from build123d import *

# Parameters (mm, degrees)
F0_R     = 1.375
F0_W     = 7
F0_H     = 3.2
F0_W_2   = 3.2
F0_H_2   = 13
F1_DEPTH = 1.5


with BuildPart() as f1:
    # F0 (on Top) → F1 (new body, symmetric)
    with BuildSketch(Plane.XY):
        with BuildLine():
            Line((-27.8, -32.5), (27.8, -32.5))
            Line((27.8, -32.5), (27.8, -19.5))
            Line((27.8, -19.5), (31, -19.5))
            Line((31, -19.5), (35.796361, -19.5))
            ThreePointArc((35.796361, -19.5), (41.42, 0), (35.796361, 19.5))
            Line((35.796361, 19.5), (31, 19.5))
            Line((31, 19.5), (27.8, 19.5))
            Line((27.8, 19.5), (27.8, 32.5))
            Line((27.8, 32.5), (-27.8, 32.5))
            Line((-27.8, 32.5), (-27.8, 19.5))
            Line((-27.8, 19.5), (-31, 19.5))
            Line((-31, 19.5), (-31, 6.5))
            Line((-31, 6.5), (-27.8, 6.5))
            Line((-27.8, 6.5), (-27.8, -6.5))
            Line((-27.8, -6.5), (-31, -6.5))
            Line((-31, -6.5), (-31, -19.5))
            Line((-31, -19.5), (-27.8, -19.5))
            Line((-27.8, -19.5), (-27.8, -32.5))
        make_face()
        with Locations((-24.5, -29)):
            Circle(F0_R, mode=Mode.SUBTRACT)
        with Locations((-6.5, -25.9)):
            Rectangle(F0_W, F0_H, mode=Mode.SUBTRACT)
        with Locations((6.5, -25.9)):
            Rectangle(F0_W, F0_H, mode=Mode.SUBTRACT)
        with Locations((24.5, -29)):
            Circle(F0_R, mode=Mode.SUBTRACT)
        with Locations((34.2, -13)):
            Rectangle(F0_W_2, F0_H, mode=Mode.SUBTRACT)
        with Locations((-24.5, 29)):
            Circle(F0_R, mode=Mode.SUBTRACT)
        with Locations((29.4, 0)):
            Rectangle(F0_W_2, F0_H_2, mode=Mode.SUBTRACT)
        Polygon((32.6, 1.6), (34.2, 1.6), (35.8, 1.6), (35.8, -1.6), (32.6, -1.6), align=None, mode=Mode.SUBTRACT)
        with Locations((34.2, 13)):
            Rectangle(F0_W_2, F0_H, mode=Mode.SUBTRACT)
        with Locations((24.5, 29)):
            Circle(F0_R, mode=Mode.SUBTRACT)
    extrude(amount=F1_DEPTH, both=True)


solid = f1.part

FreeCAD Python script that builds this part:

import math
import FreeCAD as App
import Part
import Sketcher
from FreeCAD import Vector

doc = App.newDocument("Part")
params = doc.addObject("Spreadsheet::Sheet", "Params")
for row, (alias, value) in enumerate([
    ("sketch1_diameter", "2.75 mm"),
    ("sketch1_width", "7 mm"),
    ("sketch1_height", "13 mm"),
    ("sketch1_radius", "36.62 mm"),
    ("sketch1_width2", "55.6 mm"),
    ("pad1_length", "3 mm"),
], start=1):
    params.set(f"A{row}", alias)
    params.set(f"B{row}", "=" + value)
    params.setAlias(f"B{row}", alias)

body = doc.addObject("PartDesign::Body", "Body")

# Sketch on XY plane
sketch1 = body.newObject("Sketcher::SketchObject", "Sketch")
sketch1.AttachmentSupport = (doc.getObject("XY_Plane"), [""])
sketch1.MapMode = "FlatFace"
sketch1.addGeometry([
    Part.LineSegment(Vector(-27.8, -32.5, 0), Vector(27.8, -32.5, 0)),  # 0
    Part.LineSegment(Vector(27.8, -32.5, 0), Vector(27.8, -19.5, 0)),  # 1
    Part.LineSegment(Vector(27.8, -19.5, 0), Vector(35.8, -19.5, 0)),  # 2
    Part.ArcOfCircle(Part.Circle(Vector(4.8, 0, 0), Vector(0, 0, 1), 36.6), math.radians(-32), math.radians(32)),  # 3
    Part.LineSegment(Vector(35.8, 19.5, 0), Vector(27.8, 19.5, 0)),  # 4
    Part.LineSegment(Vector(27.8, 19.5, 0), Vector(27.8, 32.5, 0)),  # 5
    Part.LineSegment(Vector(27.8, 32.5, 0), Vector(-27.8, 32.5, 0)),  # 6
    Part.LineSegment(Vector(-27.8, 32.5, 0), Vector(-27.8, 19.5, 0)),  # 7
    Part.LineSegment(Vector(-27.8, 19.5, 0), Vector(-31, 19.5, 0)),  # 8
    Part.LineSegment(Vector(-31, 19.5, 0), Vector(-31, 6.5, 0)),  # 9
    Part.LineSegment(Vector(-31, 6.5, 0), Vector(-27.8, 6.5, 0)),  # 10
    Part.LineSegment(Vector(-27.8, 6.5, 0), Vector(-27.8, -6.5, 0)),  # 11
    Part.LineSegment(Vector(-27.8, -6.5, 0), Vector(-31, -6.5, 0)),  # 12
    Part.LineSegment(Vector(-31, -6.5, 0), Vector(-31, -19.5, 0)),  # 13
    Part.LineSegment(Vector(-31, -19.5, 0), Vector(-27.8, -19.5, 0)),  # 14
    Part.LineSegment(Vector(-27.8, -19.5, 0), Vector(-27.8, -32.5, 0)),  # 15
    Part.Circle(Vector(-24.5, -29, 0), Vector(0, 0, 1), 1.4),  # 16
    Part.LineSegment(Vector(-3, -27.5, 0), Vector(-10, -27.5, 0)),  # 17
    Part.LineSegment(Vector(-10, -27.5, 0), Vector(-10, -24.3, 0)),  # 18
    Part.LineSegment(Vector(-10, -24.3, 0), Vector(-3, -24.3, 0)),  # 19
    Part.LineSegment(Vector(-3, -24.3, 0), Vector(-3, -27.5, 0)),  # 20
    Part.LineSegment(Vector(10, -27.5, 0), Vector(3, -27.5, 0)),  # 21
    Part.LineSegment(Vector(3, -27.5, 0), Vector(3, -24.3, 0)),  # 22
    Part.LineSegment(Vector(3, -24.3, 0), Vector(10, -24.3, 0)),  # 23
    Part.LineSegment(Vector(10, -24.3, 0), Vector(10, -27.5, 0)),  # 24
    Part.Circle(Vector(24.5, -29, 0), Vector(0, 0, 1), 1.4),  # 25
    Part.LineSegment(Vector(35.8, -14.6, 0), Vector(32.6, -14.6, 0)),  # 26
    Part.LineSegment(Vector(32.6, -14.6, 0), Vector(32.6, -11.4, 0)),  # 27
    Part.LineSegment(Vector(32.6, -11.4, 0), Vector(35.8, -11.4, 0)),  # 28
    Part.LineSegment(Vector(35.8, -11.4, 0), Vector(35.8, -14.6, 0)),  # 29
    Part.Circle(Vector(-24.5, 29, 0), Vector(0, 0, 1), 1.4),  # 30
    Part.LineSegment(Vector(31, -6.5, 0), Vector(27.8, -6.5, 0)),  # 31
    Part.LineSegment(Vector(27.8, -6.5, 0), Vector(27.8, 6.5, 0)),  # 32
    Part.LineSegment(Vector(27.8, 6.5, 0), Vector(31, 6.5, 0)),  # 33
    Part.LineSegment(Vector(31, 6.5, 0), Vector(31, -6.5, 0)),  # 34
    Part.LineSegment(Vector(32.6, -1.6, 0), Vector(32.6, 1.6, 0)),  # 35
    Part.LineSegment(Vector(32.6, 1.6, 0), Vector(35.8, 1.6, 0)),  # 36
    Part.LineSegment(Vector(35.8, 1.6, 0), Vector(35.8, -1.6, 0)),  # 37
    Part.LineSegment(Vector(35.8, -1.6, 0), Vector(32.6, -1.6, 0)),  # 38
    Part.LineSegment(Vector(35.8, 11.4, 0), Vector(32.6, 11.4, 0)),  # 39
    Part.LineSegment(Vector(32.6, 11.4, 0), Vector(32.6, 14.6, 0)),  # 40
    Part.LineSegment(Vector(32.6, 14.6, 0), Vector(35.8, 14.6, 0)),  # 41
    Part.LineSegment(Vector(35.8, 14.6, 0), Vector(35.8, 11.4, 0)),  # 42
    Part.Circle(Vector(24.5, 29, 0), Vector(0, 0, 1), 1.4),  # 43
], False)
sketch1.addConstraint([
    Sketcher.Constraint("Coincident", 0, 2, 1, 1),
    Sketcher.Constraint("Coincident", 1, 2, 2, 1),
    Sketcher.Constraint("Coincident", 2, 2, 3, 1),
    Sketcher.Constraint("Coincident", 3, 2, 4, 1),
    Sketcher.Constraint("Coincident", 4, 2, 5, 1),
    Sketcher.Constraint("Coincident", 5, 2, 6, 1),
    Sketcher.Constraint("Coincident", 6, 2, 7, 1),
    Sketcher.Constraint("Coincident", 7, 2, 8, 1),
    Sketcher.Constraint("Coincident", 8, 2, 9, 1),
    Sketcher.Constraint("Coincident", 9, 2, 10, 1),
    Sketcher.Constraint("Coincident", 10, 2, 11, 1),
    Sketcher.Constraint("Coincident", 11, 2, 12, 1),
    Sketcher.Constraint("Coincident", 12, 2, 13, 1),
    Sketcher.Constraint("Coincident", 13, 2, 14, 1),
    Sketcher.Constraint("Coincident", 14, 2, 15, 1),
    Sketcher.Constraint("Coincident", 15, 2, 0, 1),
    Sketcher.Constraint("Coincident", 17, 2, 18, 1),
    Sketcher.Constraint("Coincident", 18, 2, 19, 1),
    Sketcher.Constraint("Coincident", 19, 2, 20, 1),
    Sketcher.Constraint("Coincident", 20, 2, 17, 1),
    Sketcher.Constraint("Coincident", 21, 2, 22, 1),
    Sketcher.Constraint("Coincident", 22, 2, 23, 1),
    Sketcher.Constraint("Coincident", 23, 2, 24, 1),
    Sketcher.Constraint("Coincident", 24, 2, 21, 1),
    Sketcher.Constraint("Coincident", 26, 2, 27, 1),
    Sketcher.Constraint("Coincident", 27, 2, 28, 1),
    Sketcher.Constraint("Coincident", 28, 2, 29, 1),
    Sketcher.Constraint("Coincident", 29, 2, 26, 1),
    Sketcher.Constraint("Coincident", 31, 2, 32, 1),
    Sketcher.Constraint("Coincident", 32, 2, 33, 1),
    Sketcher.Constraint("Coincident", 33, 2, 34, 1),
    Sketcher.Constraint("Coincident", 34, 2, 31, 1),
    Sketcher.Constraint("Coincident", 35, 2, 36, 1),
    Sketcher.Constraint("Coincident", 36, 2, 37, 1),
    Sketcher.Constraint("Coincident", 37, 2, 38, 1),
    Sketcher.Constraint("Coincident", 38, 2, 35, 1),
    Sketcher.Constraint("Coincident", 39, 2, 40, 1),
    Sketcher.Constraint("Coincident", 40, 2, 41, 1),
    Sketcher.Constraint("Coincident", 41, 2, 42, 1),
    Sketcher.Constraint("Coincident", 42, 2, 39, 1),
    Sketcher.Constraint("Horizontal", 0),
    Sketcher.Constraint("Vertical", 1),
    Sketcher.Constraint("Horizontal", 2),
    Sketcher.Constraint("Horizontal", 4),
    Sketcher.Constraint("Vertical", 5),
    Sketcher.Constraint("Horizontal", 6),
    Sketcher.Constraint("Vertical", 7),
    Sketcher.Constraint("Horizontal", 8),
    Sketcher.Constraint("Vertical", 9),
    Sketcher.Constraint("Horizontal", 10),
    Sketcher.Constraint("Vertical", 11),
    Sketcher.Constraint("Horizontal", 12),
    Sketcher.Constraint("Vertical", 13),
    Sketcher.Constraint("Horizontal", 14),
    Sketcher.Constraint("Vertical", 15),
    Sketcher.Constraint("Horizontal", 17),
    Sketcher.Constraint("Vertical", 18),
    Sketcher.Constraint("Horizontal", 19),
    Sketcher.Constraint("Vertical", 20),
    Sketcher.Constraint("Horizontal", 21),
    Sketcher.Constraint("Vertical", 22),
    Sketcher.Constraint("Horizontal", 23),
    Sketcher.Constraint("Vertical", 24),
    Sketcher.Constraint("Horizontal", 26),
    Sketcher.Constraint("Vertical", 27),
    Sketcher.Constraint("Horizontal", 28),
    Sketcher.Constraint("Vertical", 29),
    Sketcher.Constraint("Horizontal", 31),
    Sketcher.Constraint("Vertical", 32),
    Sketcher.Constraint("Horizontal", 33),
    Sketcher.Constraint("Vertical", 34),
    Sketcher.Constraint("Vertical", 35),
    Sketcher.Constraint("Horizontal", 36),
    Sketcher.Constraint("Vertical", 37),
    Sketcher.Constraint("Horizontal", 38),
    Sketcher.Constraint("Horizontal", 39),
    Sketcher.Constraint("Vertical", 40),
    Sketcher.Constraint("Horizontal", 41),
    Sketcher.Constraint("Vertical", 42),
    Sketcher.Constraint("Equal", 16, 25),
    Sketcher.Constraint("Equal", 25, 30),
    Sketcher.Constraint("Equal", 30, 43),
    Sketcher.Constraint("Symmetric", 25, 3, 30, 3, -1, 1),
    Sketcher.Constraint("Symmetric", 16, 3, 43, 3, -1, 1),
    Sketcher.Constraint("Symmetric", 0, 2, 6, 2, -1, 1),
    Sketcher.Constraint("Symmetric", 4, 2, 14, 2, -1, 1),
    Sketcher.Constraint("Symmetric", 10, 2, 31, 2, -1, 1),
    Sketcher.Constraint("Symmetric", 12, 2, 33, 2, -1, 1),
    Sketcher.Constraint("Symmetric", 16, 3, 25, 3, -2),
    Sketcher.Constraint("Symmetric", 4, 2, 7, 2, -2),
    Sketcher.Constraint("Symmetric", 20, 2, 21, 2, -2),
    Sketcher.Constraint("Symmetric", 18, 2, 23, 2, -2),
    Sketcher.Constraint("Symmetric", 9, 2, 33, 2, -2),
    Sketcher.Constraint("Symmetric", 2, 2, 3, 2, -1),
    Sketcher.Constraint("Symmetric", 27, 2, 39, 2, -1),
    Sketcher.Constraint("Symmetric", 29, 2, 41, 2, -1),
    Sketcher.Constraint("Vertical", 7, 2, 10, 2),
    Sketcher.Constraint("Vertical", 27, 2, 35, 2),
    Sketcher.Constraint("Vertical", 29, 2, 36, 2),
    Sketcher.Constraint("Equal", 14, 26),
    Sketcher.Constraint("Equal", 7, 9),
    Sketcher.Constraint("Equal", 9, 11),
    Sketcher.Constraint("Equal", 41, 18),
    Sketcher.Constraint("Equal", 24, 27),
    Sketcher.Constraint("Equal", 29, 35),
    Sketcher.Constraint("Diameter", 16, 2.75),
    Sketcher.Constraint("DistanceX", 17, 2, 17, 1, 7.0),
    Sketcher.Constraint("DistanceY", 1, 1, 1, 2, 13.0),
    Sketcher.Constraint("Radius", 3, 36.62),
    Sketcher.Constraint("DistanceX", 0, 1, 0, 2, 55.6),
    Sketcher.Constraint("DistanceX", 8, 2, 8, 1, 3.2),
    Sketcher.Constraint("DistanceY", 16, 3, -1, 1, 29.0),
    Sketcher.Constraint("DistanceX", 17, 2, -1, 1, 10.0),
    Sketcher.Constraint("DistanceX", 16, 3, 25, 3, 49.0),
    Sketcher.Constraint("DistanceX", 3, 3, 0, 2, 23.0),
    Sketcher.Constraint("DistanceY", 15, 2, 17, 2, 5.0),
    Sketcher.Constraint("DistanceX", 1, 2, 28, 2, 8.0),
    Sketcher.Constraint("DistanceY", 27, 2, 35, 2, 13.0),
    Sketcher.Constraint("DistanceY", 26, 2, -1, 1, 14.6),
])
sketch1.setExpression("Constraints[105]", "Params.sketch1_diameter")
sketch1.setExpression("Constraints[106]", "Params.sketch1_width")
sketch1.setExpression("Constraints[107]", "Params.sketch1_height")
sketch1.setExpression("Constraints[108]", "Params.sketch1_radius")
sketch1.setExpression("Constraints[109]", "Params.sketch1_width2")
pad1 = body.newObject("PartDesign::Pad", "Pad")
pad1.Profile = sketch1
pad1.setExpression("Length", "Params.pad1_length")
pad1.Midplane = True

doc.recompute()
